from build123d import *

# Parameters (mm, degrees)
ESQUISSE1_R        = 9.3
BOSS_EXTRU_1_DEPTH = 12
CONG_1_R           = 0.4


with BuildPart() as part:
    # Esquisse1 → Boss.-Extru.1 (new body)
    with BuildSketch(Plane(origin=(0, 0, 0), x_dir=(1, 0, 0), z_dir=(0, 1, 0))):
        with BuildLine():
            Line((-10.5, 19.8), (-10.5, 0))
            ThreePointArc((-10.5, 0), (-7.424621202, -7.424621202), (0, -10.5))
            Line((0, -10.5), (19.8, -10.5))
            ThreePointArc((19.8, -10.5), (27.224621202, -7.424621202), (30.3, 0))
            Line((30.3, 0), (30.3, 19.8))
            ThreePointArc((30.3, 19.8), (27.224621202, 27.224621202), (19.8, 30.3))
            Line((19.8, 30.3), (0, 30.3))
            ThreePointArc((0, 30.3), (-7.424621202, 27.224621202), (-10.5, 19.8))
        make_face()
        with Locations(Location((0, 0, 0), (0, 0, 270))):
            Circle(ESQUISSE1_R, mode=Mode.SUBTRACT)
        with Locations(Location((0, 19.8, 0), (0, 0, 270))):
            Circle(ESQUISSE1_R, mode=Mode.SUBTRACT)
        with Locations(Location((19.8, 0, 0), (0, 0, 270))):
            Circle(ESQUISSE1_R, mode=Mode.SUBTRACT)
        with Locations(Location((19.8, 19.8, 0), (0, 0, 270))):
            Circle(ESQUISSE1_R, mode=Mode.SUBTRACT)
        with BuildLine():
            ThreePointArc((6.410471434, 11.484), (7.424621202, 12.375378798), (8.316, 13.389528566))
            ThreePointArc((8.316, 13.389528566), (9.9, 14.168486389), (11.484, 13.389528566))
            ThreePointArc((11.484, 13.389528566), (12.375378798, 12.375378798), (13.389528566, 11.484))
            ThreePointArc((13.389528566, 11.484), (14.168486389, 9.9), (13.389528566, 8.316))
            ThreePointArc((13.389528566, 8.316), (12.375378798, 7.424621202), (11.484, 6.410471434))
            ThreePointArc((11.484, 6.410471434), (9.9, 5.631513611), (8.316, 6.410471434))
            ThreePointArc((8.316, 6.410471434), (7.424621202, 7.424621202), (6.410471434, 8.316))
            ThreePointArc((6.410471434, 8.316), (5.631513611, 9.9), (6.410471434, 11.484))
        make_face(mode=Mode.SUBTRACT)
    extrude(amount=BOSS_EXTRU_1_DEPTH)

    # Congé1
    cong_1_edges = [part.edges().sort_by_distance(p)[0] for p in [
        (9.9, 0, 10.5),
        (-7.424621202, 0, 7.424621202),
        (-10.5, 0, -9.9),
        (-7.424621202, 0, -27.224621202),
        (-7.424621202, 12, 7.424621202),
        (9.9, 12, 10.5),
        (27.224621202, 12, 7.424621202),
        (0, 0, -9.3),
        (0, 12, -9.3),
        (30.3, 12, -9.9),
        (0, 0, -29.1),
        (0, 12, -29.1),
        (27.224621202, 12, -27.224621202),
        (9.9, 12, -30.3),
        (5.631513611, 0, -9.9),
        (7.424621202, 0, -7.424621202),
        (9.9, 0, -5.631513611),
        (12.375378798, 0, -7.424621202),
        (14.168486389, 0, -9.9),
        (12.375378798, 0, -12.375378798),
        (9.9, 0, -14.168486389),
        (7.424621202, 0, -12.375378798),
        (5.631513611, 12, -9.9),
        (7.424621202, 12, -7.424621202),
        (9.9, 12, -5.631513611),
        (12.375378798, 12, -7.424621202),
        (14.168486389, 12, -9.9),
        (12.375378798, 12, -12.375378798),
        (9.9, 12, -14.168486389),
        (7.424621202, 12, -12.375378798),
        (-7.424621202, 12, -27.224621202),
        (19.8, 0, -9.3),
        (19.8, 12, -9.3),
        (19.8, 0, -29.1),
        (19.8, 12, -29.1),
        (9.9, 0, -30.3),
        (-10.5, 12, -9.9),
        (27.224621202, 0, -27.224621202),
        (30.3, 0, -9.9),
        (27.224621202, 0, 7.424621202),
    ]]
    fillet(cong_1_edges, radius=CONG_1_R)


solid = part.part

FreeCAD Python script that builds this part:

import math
import FreeCAD as App
import Part
import Sketcher

V = App.Vector


def edges_at(feature, points):
    """Names of the edges that pass closest to the given points."""
    edges = feature.Shape.Edges
    near = lambda p: min(range(len(edges)), key=lambda i: edges[i].distToShape(Part.Vertex(*p))[0])
    return sorted({f"Edge{near(p) + 1}" for p in points})

doc = App.newDocument("Part")
body = doc.addObject("PartDesign::Body", "Body")

sketch1 = body.newObject("Sketcher::SketchObject", "Sketch")
sketch1.AttachmentSupport = (doc.getObject("XZ_Plane"), [""])
sketch1.MapMode = "FlatFace"
sketch1.addGeometry(Part.LineSegment(V(-10.5, -19.8, 0), V(-10.5, 0, 0)), False)
sketch1.addGeometry(Part.ArcOfCircle(Part.Circle(V(0, 0, 0), V(0, 0, 1), 10.5), math.radians(90), math.radians(180)), False)
sketch1.addGeometry(Part.LineSegment(V(0, 10.5, 0), V(19.8, 10.5, 0)), False)
sketch1.addGeometry(Part.ArcOfCircle(Part.Circle(V(19.8, 0, 0), V(0, 0, 1), 10.5), math.radians(0), math.radians(90)), False)
sketch1.addGeometry(Part.LineSegment(V(30.3, 0, 0), V(30.3, -19.8, 0)), False)
sketch1.addGeometry(Part.ArcOfCircle(Part.Circle(V(19.8, -19.8, 0), V(0, 0, 1), 10.5), math.radians(-90), math.radians(0)), False)
sketch1.addGeometry(Part.LineSegment(V(19.8, -30.3, 0), V(0, -30.3, 0)), False)
sketch1.addGeometry(Part.ArcOfCircle(Part.Circle(V(0, -19.8, 0), V(0, 0, 1), 10.5), math.radians(-180), math.radians(-90)), False)
sketch1.addGeometry(Part.Circle(V(0, 0, 0), V(0, 0, 1), 9.3), False)
sketch1.addGeometry(Part.Circle(V(19.8, 0, 0), V(0, 0, 1), 9.3), False)
sketch1.addGeometry(Part.Circle(V(0, -19.8, 0), V(0, 0, 1), 9.3), False)
sketch1.addGeometry(Part.ArcOfCircle(Part.Circle(V(7.631514, -9.9, 0), V(0, 0, 1), 2), math.radians(127.627191), math.radians(232.372809)), False)
sketch1.addGeometry(Part.ArcOfCircle(Part.Circle(V(0, -19.8, 0), V(0, 0, 1), 10.5), math.radians(37.627191), math.radians(52.372809)), False)
sketch1.addGeometry(Part.ArcOfCircle(Part.Circle(V(9.9, -12.168486, 0), V(0, 0, 1), 2), math.radians(-142.372809), math.radians(-37.627191)), False)
sketch1.addGeometry(Part.ArcOfCircle(Part.Circle(V(19.8, -19.8, 0), V(0, 0, 1), 10.5), math.radians(127.627191), math.radians(142.372809)), False)
sketch1.addGeometry(Part.ArcOfCircle(Part.Circle(V(12.168486, -9.9, 0), V(0, 0, 1), 2), math.radians(-52.372809), math.radians(52.372809)), False)
sketch1.addGeometry(Part.ArcOfCircle(Part.Circle(V(19.8, 0, 0), V(0, 0, 1), 10.5), math.radians(-142.372809), math.radians(-127.627191)), False)
sketch1.addGeometry(Part.ArcOfCircle(Part.Circle(V(9.9, -7.631514, 0), V(0, 0, 1), 2), math.radians(37.627191), math.radians(142.372809)), False)
sketch1.addGeometry(Part.ArcOfCircle(Part.Circle(V(0, 0, 0), V(0, 0, 1), 10.5), math.radians(-52.372809), math.radians(-37.627191)), False)
sketch1.addGeometry(Part.Circle(V(19.8, -19.8, 0), V(0, 0, 1), 9.3), False)
sketch1.addConstraint(Sketcher.Constraint("Tangent", 0, 2, 1, 2))
sketch1.addConstraint(Sketcher.Constraint("Tangent", 1, 1, 2, 1))
sketch1.addConstraint(Sketcher.Constraint("Tangent", 2, 2, 3, 2))
sketch1.addConstraint(Sketcher.Constraint("Tangent", 3, 1, 4, 1))
sketch1.addConstraint(Sketcher.Constraint("Tangent", 4, 2, 5, 2))
sketch1.addConstraint(Sketcher.Constraint("Tangent", 5, 1, 6, 1))
sketch1.addConstraint(Sketcher.Constraint("Tangent", 6, 2, 7, 2))
sketch1.addConstraint(Sketcher.Constraint("Tangent", 7, 1, 0, 1))
sketch1.addConstraint(Sketcher.Constraint("Tangent", 11, 2, 12, 2))
sketch1.addConstraint(Sketcher.Constraint("Tangent", 12, 1, 13, 1))
sketch1.addConstraint(Sketcher.Constraint("Tangent", 13, 2, 14, 2))
sketch1.addConstraint(Sketcher.Constraint("Tangent", 14, 1, 15, 1))
sketch1.addConstraint(Sketcher.Constraint("Tangent", 15, 2, 16, 2))
sketch1.addConstraint(Sketcher.Constraint("Tangent", 16, 1, 17, 1))
sketch1.addConstraint(Sketcher.Constraint("Tangent", 17, 2, 18, 2))
sketch1.addConstraint(Sketcher.Constraint("Tangent", 18, 1, 11, 1))
sketch1.addConstraint(Sketcher.Constraint("Vertical", 0))
sketch1.addConstraint(Sketcher.Constraint("Horizontal", 2))
sketch1.addConstraint(Sketcher.Constraint("Vertical", 4))
sketch1.addConstraint(Sketcher.Constraint("Horizontal", 6))
sketch1.addConstraint(Sketcher.Constraint("Coincident", 1, 3, -1, 1))
sketch1.addConstraint(Sketcher.Constraint("Coincident", 8, 3, -1, 1))
sketch1.addConstraint(Sketcher.Constraint("Coincident", 18, 3, -1, 1))
sketch1.addConstraint(Sketcher.Constraint("Coincident", 9, 3, 3, 3))
sketch1.addConstraint(Sketcher.Constraint("Coincident", 10, 3, 7, 3))
sketch1.addConstraint(Sketcher.Constraint("Coincident", 12, 3, 7, 3))
sketch1.addConstraint(Sketcher.Constraint("Coincident", 14, 3, 5, 3))
sketch1.addConstraint(Sketcher.Constraint("Coincident", 16, 3, 3, 3))
sketch1.addConstraint(Sketcher.Constraint("Coincident", 19, 3, 5, 3))
sketch1.addConstraint(Sketcher.Constraint("Equal", 1, 3))
sketch1.addConstraint(Sketcher.Constraint("Equal", 3, 5))
sketch1.addConstraint(Sketcher.Constraint("Equal", 5, 7))
sketch1.addConstraint(Sketcher.Constraint("Equal", 8, 9))
sketch1.addConstraint(Sketcher.Constraint("Equal", 9, 10))
sketch1.addConstraint(Sketcher.Constraint("Equal", 7, 12))
sketch1.addConstraint(Sketcher.Constraint("Equal", 11, 13))
sketch1.addConstraint(Sketcher.Constraint("Equal", 12, 14))
sketch1.addConstraint(Sketcher.Constraint("Equal", 13, 15))
sketch1.addConstraint(Sketcher.Constraint("Equal", 14, 16))
sketch1.addConstraint(Sketcher.Constraint("Equal", 15, 17))
sketch1.addConstraint(Sketcher.Constraint("Equal", 16, 18))
sketch1.addConstraint(Sketcher.Constraint("Equal", 10, 19))
sketch1.addConstraint(Sketcher.Constraint("Equal", 6, 0))
sketch1.addConstraint(Sketcher.Constraint("Radius", 11, 2.0))
sketch1.addConstraint(Sketcher.Constraint("Diameter", 8, 18.6))
sketch1.addConstraint(Sketcher.Constraint("Radius", 1, 10.5))
sketch1.addConstraint(Sketcher.Constraint("DistanceX", 2, 1, 2, 2, 19.8))
pad1 = body.newObject("PartDesign::Pad", "Pad")
pad1.Profile = sketch1
pad1.Length = 12
pad1.Reversed = True
doc.recompute()

fillet = body.newObject("PartDesign::Fillet", "Fillet")
fillet.Base = (pad1, edges_at(pad1, [
    (9.9, 0, 10.5),
    (-7.425, 0, 7.425),
    (-10.5, 0, -9.9),
    (-7.425, 0, -27.225),
    (-7.425, 12, 7.425),
    (9.9, 12, 10.5),
    (27.225, 12, 7.425),
    (0, 0, -9.3),
    (0, 12, -9.3),
    (30.3, 12, -9.9),
    (0, 0, -29.1),
    (0, 12, -29.1),
    (27.225, 12, -27.225),
    (9.9, 12, -30.3),
    (5.632, 0, -9.9),
    (7.425, 0, -7.425),
    (9.9, 0, -5.632),
    (12.375, 0, -7.425),
    (14.168, 0, -9.9),
    (12.375, 0, -12.375),
    (9.9, 0, -14.168),
    (7.425, 0, -12.375),
    (5.632, 12, -9.9),
    (7.425, 12, -7.425),
    (9.9, 12, -5.632),
    (12.375, 12, -7.425),
    (14.168, 12, -9.9),
    (12.375, 12, -12.375),
    (9.9, 12, -14.168),
    (7.425, 12, -12.375),
    (-7.425, 12, -27.225),
    (19.8, 0, -9.3),
    (19.8, 12, -9.3),
    (19.8, 0, -29.1),
    (19.8, 12, -29.1),
    (9.9, 0, -30.3),
    (-10.5, 12, -9.9),
    (27.225, 0, -27.225),
    (30.3, 0, -9.9),
    (27.225, 0, 7.425),
]))
fillet.Radius = 0.4

doc.recompute()
